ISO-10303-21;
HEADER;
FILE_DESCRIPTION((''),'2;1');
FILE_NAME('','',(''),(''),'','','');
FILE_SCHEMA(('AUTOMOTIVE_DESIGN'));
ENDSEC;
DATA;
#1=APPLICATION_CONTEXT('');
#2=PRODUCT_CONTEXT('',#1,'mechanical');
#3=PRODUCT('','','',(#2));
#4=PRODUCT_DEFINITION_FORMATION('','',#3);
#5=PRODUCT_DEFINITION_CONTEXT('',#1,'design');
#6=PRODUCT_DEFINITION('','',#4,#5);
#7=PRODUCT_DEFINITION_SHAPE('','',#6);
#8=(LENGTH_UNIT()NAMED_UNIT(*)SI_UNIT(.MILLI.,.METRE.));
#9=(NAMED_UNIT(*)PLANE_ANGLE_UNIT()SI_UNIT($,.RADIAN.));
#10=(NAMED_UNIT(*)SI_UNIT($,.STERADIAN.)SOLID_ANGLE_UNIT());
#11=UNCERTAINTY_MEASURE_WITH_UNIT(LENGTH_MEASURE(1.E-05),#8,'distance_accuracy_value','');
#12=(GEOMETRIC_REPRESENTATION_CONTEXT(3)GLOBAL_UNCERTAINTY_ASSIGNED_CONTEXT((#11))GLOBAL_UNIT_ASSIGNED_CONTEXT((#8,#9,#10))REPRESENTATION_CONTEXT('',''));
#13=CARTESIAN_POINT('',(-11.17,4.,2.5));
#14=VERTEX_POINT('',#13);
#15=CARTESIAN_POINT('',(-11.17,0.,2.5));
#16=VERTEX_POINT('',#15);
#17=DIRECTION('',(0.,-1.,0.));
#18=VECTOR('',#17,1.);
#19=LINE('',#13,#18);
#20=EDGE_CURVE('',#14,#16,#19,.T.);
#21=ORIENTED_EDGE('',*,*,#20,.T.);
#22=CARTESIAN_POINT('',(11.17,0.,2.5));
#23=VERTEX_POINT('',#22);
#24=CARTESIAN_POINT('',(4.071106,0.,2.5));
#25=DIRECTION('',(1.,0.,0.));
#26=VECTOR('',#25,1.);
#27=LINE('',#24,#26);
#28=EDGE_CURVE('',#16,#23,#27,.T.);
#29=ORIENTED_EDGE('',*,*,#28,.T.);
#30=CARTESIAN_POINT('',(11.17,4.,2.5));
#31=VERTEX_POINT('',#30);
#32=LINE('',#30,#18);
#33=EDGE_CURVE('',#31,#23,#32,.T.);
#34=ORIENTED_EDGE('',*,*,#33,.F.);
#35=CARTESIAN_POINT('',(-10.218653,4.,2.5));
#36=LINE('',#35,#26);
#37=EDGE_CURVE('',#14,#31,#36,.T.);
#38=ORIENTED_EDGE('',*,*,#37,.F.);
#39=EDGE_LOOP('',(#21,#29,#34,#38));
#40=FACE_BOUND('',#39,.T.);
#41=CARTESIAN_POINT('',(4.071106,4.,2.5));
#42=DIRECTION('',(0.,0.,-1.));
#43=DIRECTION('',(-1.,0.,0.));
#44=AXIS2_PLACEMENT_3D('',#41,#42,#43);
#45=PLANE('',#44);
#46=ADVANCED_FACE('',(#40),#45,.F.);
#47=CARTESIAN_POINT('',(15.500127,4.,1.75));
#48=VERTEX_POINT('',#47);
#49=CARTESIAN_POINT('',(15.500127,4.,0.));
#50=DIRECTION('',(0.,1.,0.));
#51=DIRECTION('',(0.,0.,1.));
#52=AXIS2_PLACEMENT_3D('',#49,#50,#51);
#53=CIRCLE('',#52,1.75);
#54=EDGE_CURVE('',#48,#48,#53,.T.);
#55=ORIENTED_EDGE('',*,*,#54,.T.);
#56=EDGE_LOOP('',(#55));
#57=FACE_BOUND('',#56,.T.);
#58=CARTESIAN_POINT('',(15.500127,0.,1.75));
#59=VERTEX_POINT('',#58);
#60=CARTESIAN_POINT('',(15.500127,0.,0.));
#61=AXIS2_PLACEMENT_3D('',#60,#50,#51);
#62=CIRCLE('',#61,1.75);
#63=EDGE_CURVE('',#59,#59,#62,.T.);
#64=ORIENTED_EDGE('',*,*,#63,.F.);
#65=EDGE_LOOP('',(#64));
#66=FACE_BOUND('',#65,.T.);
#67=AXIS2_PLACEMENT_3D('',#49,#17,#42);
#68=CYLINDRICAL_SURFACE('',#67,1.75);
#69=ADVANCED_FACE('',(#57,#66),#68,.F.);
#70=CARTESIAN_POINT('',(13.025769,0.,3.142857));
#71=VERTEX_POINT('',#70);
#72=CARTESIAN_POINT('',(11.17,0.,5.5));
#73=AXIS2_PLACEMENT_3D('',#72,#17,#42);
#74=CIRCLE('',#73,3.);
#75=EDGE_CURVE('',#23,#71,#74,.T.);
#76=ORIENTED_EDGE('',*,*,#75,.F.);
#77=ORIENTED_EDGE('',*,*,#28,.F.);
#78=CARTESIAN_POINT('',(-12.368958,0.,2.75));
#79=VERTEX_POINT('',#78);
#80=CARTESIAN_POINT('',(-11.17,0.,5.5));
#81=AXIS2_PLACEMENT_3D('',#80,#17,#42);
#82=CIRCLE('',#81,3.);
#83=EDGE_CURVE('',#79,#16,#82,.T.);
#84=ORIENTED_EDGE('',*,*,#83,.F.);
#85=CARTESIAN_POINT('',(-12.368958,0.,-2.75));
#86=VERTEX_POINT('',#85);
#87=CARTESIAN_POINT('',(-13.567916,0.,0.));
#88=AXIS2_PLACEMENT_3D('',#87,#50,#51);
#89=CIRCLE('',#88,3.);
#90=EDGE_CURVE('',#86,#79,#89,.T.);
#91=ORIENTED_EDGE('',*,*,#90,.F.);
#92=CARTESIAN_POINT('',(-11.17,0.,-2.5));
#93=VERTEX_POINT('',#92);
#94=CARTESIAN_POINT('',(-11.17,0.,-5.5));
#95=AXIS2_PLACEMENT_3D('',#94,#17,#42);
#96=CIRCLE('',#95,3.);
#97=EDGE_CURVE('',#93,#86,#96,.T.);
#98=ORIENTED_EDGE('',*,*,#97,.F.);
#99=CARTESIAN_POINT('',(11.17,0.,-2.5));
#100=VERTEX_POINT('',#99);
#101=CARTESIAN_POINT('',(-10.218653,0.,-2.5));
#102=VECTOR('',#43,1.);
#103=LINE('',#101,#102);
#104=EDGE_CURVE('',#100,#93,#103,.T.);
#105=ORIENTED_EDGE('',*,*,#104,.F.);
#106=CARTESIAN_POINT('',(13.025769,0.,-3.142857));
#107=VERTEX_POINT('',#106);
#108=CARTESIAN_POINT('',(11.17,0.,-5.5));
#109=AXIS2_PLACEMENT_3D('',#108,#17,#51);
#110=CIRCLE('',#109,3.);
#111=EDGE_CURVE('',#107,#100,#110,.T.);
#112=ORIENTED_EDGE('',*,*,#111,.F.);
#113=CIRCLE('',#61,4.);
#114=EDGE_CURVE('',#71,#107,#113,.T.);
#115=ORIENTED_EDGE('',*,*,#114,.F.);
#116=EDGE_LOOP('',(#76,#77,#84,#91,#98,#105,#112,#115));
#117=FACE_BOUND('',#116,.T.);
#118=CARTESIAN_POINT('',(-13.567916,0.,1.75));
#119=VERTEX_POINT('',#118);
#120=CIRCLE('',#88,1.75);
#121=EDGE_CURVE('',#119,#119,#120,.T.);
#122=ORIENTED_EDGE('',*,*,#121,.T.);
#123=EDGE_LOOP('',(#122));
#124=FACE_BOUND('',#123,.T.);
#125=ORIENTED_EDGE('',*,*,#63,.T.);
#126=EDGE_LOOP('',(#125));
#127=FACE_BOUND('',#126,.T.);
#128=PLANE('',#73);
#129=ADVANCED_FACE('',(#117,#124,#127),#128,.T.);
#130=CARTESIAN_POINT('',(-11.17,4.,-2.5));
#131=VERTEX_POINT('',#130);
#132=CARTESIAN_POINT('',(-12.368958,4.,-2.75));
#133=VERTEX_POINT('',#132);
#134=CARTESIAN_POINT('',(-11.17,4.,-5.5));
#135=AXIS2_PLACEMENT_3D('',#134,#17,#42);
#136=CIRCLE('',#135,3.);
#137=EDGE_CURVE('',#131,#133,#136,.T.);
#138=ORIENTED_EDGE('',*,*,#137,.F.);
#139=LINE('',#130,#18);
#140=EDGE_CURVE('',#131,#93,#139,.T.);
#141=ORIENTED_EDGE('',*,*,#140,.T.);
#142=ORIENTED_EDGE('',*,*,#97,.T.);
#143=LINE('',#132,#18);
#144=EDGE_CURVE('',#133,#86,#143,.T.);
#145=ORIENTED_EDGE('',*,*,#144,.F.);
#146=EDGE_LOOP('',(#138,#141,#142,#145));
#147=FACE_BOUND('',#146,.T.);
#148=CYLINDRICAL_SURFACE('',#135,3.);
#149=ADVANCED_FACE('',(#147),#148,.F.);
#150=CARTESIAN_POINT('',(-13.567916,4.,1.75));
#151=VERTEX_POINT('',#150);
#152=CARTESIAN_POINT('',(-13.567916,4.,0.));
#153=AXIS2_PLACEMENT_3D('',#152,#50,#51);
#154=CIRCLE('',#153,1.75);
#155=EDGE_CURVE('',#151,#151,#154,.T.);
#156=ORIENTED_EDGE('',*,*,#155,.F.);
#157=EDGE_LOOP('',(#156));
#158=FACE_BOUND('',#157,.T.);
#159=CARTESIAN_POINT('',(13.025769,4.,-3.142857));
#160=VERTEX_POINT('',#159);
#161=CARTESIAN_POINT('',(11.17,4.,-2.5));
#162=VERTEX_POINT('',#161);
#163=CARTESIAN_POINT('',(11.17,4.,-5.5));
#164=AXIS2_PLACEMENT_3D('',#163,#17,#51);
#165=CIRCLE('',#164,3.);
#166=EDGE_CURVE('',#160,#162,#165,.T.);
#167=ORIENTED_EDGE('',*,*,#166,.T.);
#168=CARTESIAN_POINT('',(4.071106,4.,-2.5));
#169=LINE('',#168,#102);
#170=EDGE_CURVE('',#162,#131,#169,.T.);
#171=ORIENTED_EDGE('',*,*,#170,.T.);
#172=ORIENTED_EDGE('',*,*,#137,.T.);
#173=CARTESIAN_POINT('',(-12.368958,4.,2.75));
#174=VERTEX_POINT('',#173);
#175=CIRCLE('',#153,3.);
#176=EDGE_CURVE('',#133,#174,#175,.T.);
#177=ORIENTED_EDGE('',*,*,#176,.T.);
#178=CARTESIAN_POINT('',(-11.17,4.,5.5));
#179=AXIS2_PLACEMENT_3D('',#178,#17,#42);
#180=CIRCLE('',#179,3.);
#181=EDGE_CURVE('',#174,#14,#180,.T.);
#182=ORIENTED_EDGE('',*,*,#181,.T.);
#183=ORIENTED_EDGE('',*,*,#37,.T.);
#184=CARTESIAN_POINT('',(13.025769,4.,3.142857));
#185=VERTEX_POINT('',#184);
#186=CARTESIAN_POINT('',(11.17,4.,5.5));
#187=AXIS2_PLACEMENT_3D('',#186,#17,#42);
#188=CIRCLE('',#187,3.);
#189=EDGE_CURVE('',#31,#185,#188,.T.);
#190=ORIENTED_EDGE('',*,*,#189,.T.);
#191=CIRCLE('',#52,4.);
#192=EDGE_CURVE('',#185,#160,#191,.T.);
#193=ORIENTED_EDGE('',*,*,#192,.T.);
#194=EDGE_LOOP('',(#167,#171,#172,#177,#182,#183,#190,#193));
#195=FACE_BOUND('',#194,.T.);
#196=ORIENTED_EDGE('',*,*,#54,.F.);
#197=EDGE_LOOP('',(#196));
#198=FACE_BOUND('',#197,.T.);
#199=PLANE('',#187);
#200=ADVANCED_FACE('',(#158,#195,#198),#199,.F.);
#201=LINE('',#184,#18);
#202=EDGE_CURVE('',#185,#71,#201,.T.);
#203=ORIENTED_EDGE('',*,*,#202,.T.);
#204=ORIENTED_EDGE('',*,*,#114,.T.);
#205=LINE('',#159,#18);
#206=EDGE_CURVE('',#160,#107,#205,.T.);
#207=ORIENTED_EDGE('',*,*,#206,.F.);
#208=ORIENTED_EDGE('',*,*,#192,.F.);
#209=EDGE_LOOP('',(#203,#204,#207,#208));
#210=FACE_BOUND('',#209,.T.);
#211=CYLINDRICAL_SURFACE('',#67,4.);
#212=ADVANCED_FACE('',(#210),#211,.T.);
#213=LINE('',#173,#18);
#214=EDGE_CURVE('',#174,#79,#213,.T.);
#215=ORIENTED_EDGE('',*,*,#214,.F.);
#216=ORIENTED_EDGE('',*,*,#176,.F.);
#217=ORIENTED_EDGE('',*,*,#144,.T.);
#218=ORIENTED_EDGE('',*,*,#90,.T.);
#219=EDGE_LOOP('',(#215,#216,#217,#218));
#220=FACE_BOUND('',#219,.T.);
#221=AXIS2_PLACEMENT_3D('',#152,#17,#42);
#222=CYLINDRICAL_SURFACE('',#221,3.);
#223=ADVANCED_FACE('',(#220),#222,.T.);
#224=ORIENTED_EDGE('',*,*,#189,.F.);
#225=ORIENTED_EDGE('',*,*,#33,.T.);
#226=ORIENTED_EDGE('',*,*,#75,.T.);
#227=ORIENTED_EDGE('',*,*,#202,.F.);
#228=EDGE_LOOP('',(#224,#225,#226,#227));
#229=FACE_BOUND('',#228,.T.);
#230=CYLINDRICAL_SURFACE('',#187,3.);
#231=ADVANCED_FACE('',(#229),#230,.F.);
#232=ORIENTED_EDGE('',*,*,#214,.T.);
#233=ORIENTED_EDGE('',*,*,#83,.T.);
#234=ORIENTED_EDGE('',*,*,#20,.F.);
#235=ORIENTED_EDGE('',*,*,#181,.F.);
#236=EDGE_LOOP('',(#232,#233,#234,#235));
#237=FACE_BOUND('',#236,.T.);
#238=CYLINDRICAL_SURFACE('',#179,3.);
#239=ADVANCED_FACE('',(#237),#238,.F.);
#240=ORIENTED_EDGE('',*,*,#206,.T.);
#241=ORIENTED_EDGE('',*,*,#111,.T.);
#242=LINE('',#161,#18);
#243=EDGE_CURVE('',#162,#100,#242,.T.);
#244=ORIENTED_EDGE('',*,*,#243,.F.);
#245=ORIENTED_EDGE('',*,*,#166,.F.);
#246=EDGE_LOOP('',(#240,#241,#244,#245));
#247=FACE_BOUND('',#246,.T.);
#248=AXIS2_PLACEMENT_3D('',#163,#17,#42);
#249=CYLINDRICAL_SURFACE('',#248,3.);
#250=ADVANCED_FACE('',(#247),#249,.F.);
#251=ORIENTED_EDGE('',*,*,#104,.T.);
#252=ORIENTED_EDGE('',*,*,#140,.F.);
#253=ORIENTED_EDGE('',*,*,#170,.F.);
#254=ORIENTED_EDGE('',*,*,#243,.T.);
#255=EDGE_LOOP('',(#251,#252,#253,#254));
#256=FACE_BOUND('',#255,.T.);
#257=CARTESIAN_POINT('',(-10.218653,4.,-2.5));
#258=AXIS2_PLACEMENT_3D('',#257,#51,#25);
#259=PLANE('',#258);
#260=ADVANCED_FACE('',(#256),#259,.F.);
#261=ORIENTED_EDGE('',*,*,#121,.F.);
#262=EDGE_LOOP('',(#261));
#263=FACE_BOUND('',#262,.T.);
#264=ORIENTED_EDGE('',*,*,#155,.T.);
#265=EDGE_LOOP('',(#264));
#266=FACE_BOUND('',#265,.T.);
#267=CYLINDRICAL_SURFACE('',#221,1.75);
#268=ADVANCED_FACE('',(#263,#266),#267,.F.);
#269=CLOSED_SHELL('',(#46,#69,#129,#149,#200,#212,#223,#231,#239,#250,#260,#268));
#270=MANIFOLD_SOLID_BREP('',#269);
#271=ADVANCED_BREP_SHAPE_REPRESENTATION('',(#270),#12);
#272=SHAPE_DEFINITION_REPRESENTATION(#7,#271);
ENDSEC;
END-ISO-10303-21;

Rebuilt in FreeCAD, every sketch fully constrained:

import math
import FreeCAD as App
import Part
import Sketcher

V = App.Vector
Q = App.Units.Quantity

doc = App.newDocument("Part")
body = doc.addObject("PartDesign::Body", "Body")

# Sketch on XZ plane
sketch1 = body.newObject("Sketcher::SketchObject", "Sketch")
sketch1.AttachmentSupport = (doc.getObject("XZ_Plane"), [""])
sketch1.MapMode = "FlatFace"
sketch1.addGeometry([
    Part.ArcOfCircle(Part.Circle(V(11.2, 5.5, 0), V(0, 0, 1), 3), math.radians(-90), math.radians(-52)),  # 0
    Part.ArcOfCircle(Part.Circle(V(15.5, 0, 0), V(0, 0, 1), 4), math.radians(-128), math.radians(128)),  # 1
    Part.ArcOfCircle(Part.Circle(V(11.2, -5.5, 0), V(0, 0, 1), 3), math.radians(52), math.radians(90)),  # 2
    Part.LineSegment(V(11.2, -2.5, 0), V(-11.2, -2.5, 0)),  # 3
    Part.ArcOfCircle(Part.Circle(V(-11.2, -5.5, 0), V(0, 0, 1), 3), math.radians(90), math.radians(114)),  # 4
    Part.ArcOfCircle(Part.Circle(V(-13.6, 0, 0), V(0, 0, 1), 3), math.radians(66), math.radians(294)),  # 5
    Part.ArcOfCircle(Part.Circle(V(-11.2, 5.5, 0), V(0, 0, 1), 3), math.radians(-114), math.radians(-90)),  # 6
    Part.LineSegment(V(-11.2, 2.5, 0), V(11.2, 2.5, 0)),  # 7
    Part.Circle(V(-13.6, 0, 0), V(0, 0, 1), 1.8),  # 8
    Part.Circle(V(15.5, 0, 0), V(0, 0, 1), 1.8),  # 9
], False)
sketch1.addConstraint([
    Sketcher.Constraint("Tangent", 0, 2, 1, 2),
    Sketcher.Constraint("Tangent", 1, 1, 2, 1),
    Sketcher.Constraint("Tangent", 2, 2, 3, 1),
    Sketcher.Constraint("Tangent", 3, 2, 4, 1),
    Sketcher.Constraint("Tangent", 4, 2, 5, 2),
    Sketcher.Constraint("Tangent", 5, 1, 6, 1),
    Sketcher.Constraint("Tangent", 6, 2, 7, 1),
    Sketcher.Constraint("Tangent", 7, 2, 0, 1),
    Sketcher.Constraint("Horizontal", 3),
    Sketcher.Constraint("Horizontal", 7),
    Sketcher.Constraint("Coincident", 8, 3, 5, 3),
    Sketcher.Constraint("Coincident", 9, 3, 1, 3),
    Sketcher.Constraint("Equal", 0, 2),
    Sketcher.Constraint("Equal", 2, 4),
    Sketcher.Constraint("Equal", 4, 5),
    Sketcher.Constraint("Equal", 5, 6),
    Sketcher.Constraint("Equal", 8, 9),
    Sketcher.Constraint("Symmetric", 0, 3, 4, 3, -1, 1),
    Sketcher.Constraint("PointOnObject", 1, 3, -1),
    Sketcher.Constraint("PointOnObject", 5, 3, -1),
    Sketcher.Constraint("Radius", 0, Q("3 mm")),
    Sketcher.Constraint("Radius", 1, Q("4 mm")),
    Sketcher.Constraint("Diameter", 8, Q("3.5 mm")),
    Sketcher.Constraint("DistanceY", 2, 3, 0, 3, Q("11 mm")),
    Sketcher.Constraint("DistanceX", 3, 2, 3, 1, Q("22.34 mm")),
])
pad1 = body.newObject("PartDesign::Pad", "Pad")
pad1.Profile = sketch1
pad1.Length = 4
pad1.Reversed = True

doc.recompute()
